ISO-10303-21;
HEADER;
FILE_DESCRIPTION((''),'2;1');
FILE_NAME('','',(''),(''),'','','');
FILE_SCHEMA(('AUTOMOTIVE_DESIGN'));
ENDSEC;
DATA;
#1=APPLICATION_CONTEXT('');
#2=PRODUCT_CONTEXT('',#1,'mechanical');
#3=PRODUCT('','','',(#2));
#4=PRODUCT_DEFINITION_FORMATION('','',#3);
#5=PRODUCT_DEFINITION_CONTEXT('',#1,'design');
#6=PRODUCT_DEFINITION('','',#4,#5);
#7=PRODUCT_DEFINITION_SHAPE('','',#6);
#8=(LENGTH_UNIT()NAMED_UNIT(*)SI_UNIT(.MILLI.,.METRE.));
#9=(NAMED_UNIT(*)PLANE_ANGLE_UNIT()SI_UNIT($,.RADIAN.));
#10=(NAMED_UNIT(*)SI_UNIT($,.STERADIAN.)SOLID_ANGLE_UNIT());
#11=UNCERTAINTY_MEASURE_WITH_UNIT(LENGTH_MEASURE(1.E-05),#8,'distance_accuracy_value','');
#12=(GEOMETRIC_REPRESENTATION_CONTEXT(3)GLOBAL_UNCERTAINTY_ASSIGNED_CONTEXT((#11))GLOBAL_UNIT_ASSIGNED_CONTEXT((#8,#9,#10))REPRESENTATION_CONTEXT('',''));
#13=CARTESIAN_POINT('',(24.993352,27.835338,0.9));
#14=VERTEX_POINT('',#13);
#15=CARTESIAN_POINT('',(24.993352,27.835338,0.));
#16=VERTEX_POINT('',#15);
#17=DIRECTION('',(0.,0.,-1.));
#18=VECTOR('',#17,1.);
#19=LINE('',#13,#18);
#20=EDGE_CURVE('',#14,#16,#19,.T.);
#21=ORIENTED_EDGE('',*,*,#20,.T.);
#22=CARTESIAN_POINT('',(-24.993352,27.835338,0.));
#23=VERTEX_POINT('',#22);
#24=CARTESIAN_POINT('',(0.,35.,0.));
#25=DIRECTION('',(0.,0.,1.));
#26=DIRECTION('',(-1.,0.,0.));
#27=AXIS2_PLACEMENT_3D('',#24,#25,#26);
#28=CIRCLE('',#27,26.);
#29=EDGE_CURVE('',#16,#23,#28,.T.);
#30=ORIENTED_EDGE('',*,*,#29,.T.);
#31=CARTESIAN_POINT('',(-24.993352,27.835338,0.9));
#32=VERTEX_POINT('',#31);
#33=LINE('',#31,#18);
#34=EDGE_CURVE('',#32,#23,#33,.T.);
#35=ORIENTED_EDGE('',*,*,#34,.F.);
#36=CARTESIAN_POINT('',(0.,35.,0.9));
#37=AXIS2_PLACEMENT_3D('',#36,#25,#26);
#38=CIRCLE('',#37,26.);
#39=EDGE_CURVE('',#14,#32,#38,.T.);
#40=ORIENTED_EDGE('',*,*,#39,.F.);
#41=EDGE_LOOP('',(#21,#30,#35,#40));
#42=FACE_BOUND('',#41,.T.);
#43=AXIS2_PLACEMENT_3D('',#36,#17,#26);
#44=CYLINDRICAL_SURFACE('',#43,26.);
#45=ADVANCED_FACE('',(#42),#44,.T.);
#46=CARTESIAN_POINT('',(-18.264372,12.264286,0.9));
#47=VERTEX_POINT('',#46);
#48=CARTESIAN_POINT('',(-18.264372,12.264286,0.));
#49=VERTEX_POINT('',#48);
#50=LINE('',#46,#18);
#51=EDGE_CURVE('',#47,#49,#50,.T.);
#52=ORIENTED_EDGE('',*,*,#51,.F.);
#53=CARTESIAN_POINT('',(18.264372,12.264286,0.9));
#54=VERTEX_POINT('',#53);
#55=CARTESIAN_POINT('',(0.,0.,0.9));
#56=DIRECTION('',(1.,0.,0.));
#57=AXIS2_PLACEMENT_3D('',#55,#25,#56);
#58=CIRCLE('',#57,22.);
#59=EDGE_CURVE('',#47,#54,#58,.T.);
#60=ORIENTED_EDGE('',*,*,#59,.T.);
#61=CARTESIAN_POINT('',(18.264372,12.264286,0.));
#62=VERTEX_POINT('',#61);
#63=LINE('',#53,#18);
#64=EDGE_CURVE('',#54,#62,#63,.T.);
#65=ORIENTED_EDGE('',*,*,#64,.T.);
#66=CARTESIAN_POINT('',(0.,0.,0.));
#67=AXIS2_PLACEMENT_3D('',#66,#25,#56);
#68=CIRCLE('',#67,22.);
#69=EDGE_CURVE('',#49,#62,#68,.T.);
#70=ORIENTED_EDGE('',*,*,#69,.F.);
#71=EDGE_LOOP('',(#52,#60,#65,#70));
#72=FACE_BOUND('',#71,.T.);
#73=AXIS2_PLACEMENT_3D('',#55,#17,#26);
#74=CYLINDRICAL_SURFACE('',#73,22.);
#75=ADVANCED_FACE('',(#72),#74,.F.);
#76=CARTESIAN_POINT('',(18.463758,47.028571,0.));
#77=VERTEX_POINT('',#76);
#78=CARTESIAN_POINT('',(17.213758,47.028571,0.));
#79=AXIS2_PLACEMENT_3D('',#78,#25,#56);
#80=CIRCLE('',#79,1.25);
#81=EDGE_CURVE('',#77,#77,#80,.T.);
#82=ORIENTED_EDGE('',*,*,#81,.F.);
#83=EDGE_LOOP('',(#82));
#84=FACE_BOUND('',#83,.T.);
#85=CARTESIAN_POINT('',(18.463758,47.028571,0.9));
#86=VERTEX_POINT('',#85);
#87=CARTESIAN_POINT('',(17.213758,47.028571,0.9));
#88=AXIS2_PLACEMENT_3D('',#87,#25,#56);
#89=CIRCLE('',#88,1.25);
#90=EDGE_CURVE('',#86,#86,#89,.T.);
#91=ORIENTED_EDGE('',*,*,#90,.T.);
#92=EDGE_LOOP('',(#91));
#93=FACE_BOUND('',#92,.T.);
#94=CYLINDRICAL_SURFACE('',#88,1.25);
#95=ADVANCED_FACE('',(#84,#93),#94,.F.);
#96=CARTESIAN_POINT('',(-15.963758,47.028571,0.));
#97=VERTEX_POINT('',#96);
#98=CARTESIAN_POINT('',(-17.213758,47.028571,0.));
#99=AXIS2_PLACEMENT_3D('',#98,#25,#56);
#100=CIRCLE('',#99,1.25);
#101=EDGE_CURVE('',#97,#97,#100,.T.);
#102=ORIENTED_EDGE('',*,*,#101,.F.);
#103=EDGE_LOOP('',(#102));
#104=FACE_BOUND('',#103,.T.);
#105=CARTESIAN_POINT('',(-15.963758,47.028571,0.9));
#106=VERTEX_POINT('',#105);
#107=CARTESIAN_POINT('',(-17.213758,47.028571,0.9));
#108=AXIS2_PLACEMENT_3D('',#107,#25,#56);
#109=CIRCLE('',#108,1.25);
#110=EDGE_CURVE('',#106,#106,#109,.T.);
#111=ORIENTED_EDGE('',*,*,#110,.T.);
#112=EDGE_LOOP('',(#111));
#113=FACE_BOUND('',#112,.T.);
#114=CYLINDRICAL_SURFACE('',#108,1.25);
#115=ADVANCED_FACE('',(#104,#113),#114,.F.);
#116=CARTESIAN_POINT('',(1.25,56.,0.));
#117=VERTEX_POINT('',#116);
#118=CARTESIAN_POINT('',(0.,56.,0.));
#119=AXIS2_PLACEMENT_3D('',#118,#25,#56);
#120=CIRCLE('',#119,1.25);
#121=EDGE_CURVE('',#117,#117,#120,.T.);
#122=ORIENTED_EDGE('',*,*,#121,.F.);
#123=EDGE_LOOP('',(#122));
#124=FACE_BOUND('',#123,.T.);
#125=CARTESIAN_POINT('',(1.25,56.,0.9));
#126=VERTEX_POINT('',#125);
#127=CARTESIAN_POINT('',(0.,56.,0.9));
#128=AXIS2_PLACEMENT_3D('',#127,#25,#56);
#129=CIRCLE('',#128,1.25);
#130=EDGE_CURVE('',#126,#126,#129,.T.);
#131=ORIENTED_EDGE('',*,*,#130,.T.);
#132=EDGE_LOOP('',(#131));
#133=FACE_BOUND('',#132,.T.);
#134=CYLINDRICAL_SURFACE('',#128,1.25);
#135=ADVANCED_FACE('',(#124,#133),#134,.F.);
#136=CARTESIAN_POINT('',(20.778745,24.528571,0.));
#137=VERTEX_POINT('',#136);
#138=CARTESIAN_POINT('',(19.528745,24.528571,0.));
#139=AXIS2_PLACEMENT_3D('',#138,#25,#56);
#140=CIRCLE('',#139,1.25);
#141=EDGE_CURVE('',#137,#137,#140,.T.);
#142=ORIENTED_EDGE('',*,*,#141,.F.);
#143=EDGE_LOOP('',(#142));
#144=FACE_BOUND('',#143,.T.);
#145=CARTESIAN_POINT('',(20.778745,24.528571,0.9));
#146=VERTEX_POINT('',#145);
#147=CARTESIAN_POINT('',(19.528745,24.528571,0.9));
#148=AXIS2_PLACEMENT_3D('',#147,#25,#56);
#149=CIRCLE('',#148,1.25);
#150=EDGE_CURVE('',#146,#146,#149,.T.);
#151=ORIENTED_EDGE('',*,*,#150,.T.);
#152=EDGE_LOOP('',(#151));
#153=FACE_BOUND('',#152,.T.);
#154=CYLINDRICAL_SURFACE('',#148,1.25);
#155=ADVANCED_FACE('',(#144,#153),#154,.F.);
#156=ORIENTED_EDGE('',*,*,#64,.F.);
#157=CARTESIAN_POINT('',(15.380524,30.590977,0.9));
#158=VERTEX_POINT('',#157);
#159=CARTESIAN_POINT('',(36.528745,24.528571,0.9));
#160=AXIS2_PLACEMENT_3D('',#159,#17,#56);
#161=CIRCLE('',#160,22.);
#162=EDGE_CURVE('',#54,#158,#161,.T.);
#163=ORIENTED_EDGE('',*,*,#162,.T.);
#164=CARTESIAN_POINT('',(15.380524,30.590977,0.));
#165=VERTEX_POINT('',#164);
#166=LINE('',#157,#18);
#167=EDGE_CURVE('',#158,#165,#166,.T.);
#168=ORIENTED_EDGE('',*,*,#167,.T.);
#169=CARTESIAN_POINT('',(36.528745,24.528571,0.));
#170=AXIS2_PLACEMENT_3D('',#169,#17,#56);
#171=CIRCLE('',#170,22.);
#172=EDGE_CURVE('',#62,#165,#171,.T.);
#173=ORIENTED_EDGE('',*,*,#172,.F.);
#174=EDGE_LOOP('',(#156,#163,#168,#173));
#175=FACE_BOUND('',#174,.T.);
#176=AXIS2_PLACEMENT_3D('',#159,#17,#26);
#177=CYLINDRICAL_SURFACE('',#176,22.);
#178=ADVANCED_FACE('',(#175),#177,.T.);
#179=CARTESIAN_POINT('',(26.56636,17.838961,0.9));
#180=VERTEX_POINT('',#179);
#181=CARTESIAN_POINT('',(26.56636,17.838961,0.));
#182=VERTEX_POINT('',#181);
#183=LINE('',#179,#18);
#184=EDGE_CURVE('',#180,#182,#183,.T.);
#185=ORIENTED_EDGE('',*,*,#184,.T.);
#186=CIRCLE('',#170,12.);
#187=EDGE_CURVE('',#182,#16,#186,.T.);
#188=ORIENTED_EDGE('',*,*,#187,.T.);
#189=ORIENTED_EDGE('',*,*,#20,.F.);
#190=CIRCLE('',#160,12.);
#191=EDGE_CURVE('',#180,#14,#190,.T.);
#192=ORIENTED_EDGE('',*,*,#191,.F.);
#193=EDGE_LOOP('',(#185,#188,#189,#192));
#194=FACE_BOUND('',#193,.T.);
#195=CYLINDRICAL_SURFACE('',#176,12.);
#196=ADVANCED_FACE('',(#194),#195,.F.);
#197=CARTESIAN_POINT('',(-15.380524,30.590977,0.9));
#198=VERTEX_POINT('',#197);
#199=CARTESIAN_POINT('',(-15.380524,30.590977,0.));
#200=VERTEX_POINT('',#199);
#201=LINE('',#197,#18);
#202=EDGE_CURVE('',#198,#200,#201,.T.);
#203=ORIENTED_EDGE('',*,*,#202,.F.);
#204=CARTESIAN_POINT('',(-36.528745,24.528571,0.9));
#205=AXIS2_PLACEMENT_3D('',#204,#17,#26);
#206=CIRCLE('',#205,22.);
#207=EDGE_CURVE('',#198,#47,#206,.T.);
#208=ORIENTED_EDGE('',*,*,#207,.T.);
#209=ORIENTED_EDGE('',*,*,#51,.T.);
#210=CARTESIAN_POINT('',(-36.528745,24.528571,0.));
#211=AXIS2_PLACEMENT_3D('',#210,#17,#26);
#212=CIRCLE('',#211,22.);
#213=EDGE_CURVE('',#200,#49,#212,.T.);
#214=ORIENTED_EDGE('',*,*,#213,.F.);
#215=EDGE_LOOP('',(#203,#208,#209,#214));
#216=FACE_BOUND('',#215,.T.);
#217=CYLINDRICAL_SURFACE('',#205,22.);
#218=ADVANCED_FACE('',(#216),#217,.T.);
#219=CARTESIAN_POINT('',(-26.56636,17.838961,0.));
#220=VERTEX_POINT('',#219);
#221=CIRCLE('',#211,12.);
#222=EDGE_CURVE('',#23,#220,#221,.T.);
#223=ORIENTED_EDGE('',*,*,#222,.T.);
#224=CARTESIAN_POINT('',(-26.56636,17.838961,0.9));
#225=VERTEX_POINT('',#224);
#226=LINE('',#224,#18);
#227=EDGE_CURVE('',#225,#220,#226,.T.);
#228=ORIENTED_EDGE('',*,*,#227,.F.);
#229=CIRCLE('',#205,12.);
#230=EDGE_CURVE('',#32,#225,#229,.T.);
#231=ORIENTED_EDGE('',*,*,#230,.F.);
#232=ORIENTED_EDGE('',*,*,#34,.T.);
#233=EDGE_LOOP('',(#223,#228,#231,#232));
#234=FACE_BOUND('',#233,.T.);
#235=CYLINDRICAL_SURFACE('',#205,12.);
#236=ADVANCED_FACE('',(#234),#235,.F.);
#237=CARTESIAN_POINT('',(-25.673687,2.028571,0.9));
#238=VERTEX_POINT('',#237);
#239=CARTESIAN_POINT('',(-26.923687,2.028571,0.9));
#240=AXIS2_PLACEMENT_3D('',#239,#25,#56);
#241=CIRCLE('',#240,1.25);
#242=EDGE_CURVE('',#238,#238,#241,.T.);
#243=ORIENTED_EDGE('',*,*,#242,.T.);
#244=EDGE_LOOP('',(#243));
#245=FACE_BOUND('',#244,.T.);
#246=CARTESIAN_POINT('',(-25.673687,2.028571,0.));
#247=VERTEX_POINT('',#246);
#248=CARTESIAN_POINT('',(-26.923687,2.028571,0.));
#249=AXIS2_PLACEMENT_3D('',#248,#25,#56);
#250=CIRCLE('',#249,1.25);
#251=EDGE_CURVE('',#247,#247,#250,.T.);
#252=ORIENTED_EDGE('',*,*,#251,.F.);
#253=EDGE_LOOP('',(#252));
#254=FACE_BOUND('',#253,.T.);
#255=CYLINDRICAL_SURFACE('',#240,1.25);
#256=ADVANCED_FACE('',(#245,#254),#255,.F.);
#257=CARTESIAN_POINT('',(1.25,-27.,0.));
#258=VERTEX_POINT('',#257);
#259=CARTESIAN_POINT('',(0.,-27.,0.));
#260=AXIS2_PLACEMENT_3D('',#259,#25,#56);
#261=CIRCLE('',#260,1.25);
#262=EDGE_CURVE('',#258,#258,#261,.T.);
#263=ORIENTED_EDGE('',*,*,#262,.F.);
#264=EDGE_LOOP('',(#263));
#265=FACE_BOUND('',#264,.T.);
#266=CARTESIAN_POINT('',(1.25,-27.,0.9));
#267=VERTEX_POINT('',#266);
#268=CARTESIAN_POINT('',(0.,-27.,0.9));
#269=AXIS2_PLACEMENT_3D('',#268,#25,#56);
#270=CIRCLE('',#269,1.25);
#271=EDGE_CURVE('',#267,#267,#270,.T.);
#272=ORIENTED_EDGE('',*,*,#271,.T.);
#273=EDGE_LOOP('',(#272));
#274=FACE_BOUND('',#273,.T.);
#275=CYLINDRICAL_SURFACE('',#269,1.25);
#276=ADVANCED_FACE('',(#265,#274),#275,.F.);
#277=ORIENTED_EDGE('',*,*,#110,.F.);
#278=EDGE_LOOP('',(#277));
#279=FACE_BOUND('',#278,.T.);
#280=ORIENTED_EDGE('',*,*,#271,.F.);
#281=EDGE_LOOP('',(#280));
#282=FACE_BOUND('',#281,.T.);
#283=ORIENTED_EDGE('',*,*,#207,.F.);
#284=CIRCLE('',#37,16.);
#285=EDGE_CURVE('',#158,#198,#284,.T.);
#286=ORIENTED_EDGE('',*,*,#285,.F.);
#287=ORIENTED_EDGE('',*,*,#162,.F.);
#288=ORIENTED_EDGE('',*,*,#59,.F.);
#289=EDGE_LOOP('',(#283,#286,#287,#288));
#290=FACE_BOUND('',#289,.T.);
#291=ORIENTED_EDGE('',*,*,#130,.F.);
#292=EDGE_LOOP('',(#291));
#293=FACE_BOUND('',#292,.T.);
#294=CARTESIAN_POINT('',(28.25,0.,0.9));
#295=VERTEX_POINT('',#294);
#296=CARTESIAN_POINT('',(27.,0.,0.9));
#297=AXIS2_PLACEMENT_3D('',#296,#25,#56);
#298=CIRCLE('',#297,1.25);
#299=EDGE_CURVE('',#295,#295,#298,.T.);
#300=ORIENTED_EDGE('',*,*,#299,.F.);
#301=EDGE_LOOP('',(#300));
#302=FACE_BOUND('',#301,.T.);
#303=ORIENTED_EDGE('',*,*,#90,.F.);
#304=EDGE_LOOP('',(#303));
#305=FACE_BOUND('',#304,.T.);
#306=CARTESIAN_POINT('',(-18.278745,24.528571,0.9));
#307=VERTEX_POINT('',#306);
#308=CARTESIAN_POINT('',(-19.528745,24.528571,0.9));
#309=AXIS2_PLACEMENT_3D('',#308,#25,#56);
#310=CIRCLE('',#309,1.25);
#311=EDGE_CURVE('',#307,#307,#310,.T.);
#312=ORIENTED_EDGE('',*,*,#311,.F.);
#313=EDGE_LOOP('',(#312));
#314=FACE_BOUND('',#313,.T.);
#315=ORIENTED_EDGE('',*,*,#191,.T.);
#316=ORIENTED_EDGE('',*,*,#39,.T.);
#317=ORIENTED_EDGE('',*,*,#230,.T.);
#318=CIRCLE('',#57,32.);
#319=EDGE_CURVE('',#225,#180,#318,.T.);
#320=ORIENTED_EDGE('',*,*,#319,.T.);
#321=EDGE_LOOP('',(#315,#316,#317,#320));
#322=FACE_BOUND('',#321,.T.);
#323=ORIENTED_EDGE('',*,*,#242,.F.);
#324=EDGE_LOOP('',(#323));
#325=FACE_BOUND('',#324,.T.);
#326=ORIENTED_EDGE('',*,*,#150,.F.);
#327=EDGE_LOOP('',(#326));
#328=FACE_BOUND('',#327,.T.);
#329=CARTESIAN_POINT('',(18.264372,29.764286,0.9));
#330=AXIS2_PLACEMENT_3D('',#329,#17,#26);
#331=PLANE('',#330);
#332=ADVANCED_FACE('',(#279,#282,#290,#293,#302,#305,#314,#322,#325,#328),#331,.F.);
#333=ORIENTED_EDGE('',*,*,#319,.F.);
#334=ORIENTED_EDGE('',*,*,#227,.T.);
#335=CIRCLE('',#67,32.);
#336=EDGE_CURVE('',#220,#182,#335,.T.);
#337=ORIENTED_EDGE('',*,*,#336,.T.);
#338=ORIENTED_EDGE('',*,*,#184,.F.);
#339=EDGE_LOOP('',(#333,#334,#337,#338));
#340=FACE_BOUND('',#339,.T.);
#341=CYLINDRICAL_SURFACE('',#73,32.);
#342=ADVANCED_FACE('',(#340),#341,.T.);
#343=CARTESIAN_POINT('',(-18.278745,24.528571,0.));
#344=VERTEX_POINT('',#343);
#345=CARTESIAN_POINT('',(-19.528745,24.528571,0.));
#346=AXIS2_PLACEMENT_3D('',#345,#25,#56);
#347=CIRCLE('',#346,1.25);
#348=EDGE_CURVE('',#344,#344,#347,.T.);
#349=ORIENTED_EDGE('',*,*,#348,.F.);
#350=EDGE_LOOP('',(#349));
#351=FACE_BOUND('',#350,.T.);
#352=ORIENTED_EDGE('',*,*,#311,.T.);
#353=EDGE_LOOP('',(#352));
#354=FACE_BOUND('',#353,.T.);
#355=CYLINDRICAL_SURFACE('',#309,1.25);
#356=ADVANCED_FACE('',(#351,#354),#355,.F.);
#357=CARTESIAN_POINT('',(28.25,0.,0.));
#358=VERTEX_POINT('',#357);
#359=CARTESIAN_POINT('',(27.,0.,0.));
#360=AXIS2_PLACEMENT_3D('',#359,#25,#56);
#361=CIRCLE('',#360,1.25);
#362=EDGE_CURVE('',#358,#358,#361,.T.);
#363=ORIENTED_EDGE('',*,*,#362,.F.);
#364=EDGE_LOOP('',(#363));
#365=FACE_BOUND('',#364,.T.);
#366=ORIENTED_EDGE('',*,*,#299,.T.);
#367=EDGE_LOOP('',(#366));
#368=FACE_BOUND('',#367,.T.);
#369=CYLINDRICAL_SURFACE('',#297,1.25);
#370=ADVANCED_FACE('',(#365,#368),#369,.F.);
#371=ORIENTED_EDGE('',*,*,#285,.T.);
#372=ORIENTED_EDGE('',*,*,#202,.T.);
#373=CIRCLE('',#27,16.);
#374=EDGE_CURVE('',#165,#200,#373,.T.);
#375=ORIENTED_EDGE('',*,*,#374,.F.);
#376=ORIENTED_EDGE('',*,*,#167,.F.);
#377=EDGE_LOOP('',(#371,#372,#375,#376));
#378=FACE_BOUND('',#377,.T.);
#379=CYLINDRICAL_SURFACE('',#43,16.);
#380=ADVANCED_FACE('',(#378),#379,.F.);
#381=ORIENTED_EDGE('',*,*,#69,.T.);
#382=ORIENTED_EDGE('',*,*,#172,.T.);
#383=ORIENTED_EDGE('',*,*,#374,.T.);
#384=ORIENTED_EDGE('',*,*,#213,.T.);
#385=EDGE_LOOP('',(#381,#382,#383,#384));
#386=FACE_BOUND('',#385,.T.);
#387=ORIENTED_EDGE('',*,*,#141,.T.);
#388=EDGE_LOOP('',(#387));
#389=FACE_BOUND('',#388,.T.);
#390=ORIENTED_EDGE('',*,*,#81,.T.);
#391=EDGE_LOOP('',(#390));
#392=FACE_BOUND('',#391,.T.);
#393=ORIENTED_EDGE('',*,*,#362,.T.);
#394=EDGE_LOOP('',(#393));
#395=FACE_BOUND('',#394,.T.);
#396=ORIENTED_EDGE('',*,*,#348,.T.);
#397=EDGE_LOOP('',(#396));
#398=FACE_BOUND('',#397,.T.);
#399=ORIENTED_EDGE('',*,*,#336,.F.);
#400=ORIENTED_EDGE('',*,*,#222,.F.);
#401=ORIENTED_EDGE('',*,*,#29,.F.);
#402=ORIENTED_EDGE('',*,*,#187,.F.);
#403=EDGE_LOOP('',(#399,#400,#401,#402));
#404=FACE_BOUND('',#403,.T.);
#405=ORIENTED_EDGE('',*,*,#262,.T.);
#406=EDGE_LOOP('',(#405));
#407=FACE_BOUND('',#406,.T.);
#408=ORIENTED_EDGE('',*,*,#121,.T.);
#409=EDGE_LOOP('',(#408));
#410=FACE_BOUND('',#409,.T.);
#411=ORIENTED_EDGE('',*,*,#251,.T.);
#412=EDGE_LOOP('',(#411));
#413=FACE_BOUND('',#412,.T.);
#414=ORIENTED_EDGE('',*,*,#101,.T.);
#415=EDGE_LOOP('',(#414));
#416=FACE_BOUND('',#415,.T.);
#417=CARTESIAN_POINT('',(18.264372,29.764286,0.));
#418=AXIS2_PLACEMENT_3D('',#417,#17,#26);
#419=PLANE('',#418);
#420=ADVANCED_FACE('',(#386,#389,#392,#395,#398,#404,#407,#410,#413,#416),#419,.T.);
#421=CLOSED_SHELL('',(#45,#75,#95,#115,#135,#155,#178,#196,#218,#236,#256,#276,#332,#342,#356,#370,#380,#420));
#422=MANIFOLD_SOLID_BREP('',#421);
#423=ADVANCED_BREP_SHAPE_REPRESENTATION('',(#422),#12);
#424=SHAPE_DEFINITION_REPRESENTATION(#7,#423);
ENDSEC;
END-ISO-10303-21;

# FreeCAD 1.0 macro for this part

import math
import FreeCAD as App
import Part
import Sketcher

V = App.Vector
Q = App.Units.Quantity

doc = App.newDocument("Part")
params = doc.addObject("Spreadsheet::Sheet", "Params")
for row, (alias, value) in enumerate([
    ("sketch1_radius", "12 mm"),
    ("sketch1_radius2", "32 mm"),
    ("sketch1_radius3", "26 mm"),
    ("pad1_length", "0.9 mm"),
    ("sketch2_diameter", "2.5 mm"),
    ("hole_diameter", "2.5 mm"),
], start=1):
    params.set(f"A{row}", alias)
    params.set(f"B{row}", "=" + value)
    params.setAlias(f"B{row}", alias)

body = doc.addObject("PartDesign::Body", "Body")

sketch1 = body.newObject("Sketcher::SketchObject", "Sketch")
sketch1.AttachmentSupport = (doc.getObject("XY_Plane"), [""])
sketch1.MapMode = "FlatFace"
sketch1.addGeometry(Part.ArcOfCircle(Part.Circle(V(-37, 25, 0), V(0, 0, 1), 12), math.radians(-34), math.radians(16)), False)
sketch1.addGeometry(Part.ArcOfCircle(Part.Circle(V(0, 0, 0), V(0, 0, 1), 32), math.radians(146), math.radians(394)), False)
sketch1.addGeometry(Part.ArcOfCircle(Part.Circle(V(37, 25, 0), V(0, 0, 1), 12), math.radians(164), math.radians(214)), False)
sketch1.addGeometry(Part.ArcOfCircle(Part.Circle(V(0, 35, 0), V(0, 0, 1), 26), math.radians(-16), math.radians(196)), False)
sketch1.addGeometry(Part.ArcOfCircle(Part.Circle(V(-37, 25, 0), V(0, 0, 1), 22), math.radians(-34), math.radians(16)), False)
sketch1.addGeometry(Part.ArcOfCircle(Part.Circle(V(0, 35, 0), V(0, 0, 1), 16), math.radians(-16), math.radians(196)), False)
sketch1.addGeometry(Part.ArcOfCircle(Part.Circle(V(37, 25, 0), V(0, 0, 1), 22), math.radians(164), math.radians(214)), False)
sketch1.addGeometry(Part.ArcOfCircle(Part.Circle(V(0, 0, 0), V(0, 0, 1), 22), math.radians(146), math.radians(394)), False)
sketch1.addConstraint(Sketcher.Constraint("Tangent", 0, 1, 1, 1))
sketch1.addConstraint(Sketcher.Constraint("Tangent", 1, 2, 2, 2))
sketch1.addConstraint(Sketcher.Constraint("Tangent", 2, 1, 3, 1))
sketch1.addConstraint(Sketcher.Constraint("Tangent", 3, 2, 0, 2))
sketch1.addConstraint(Sketcher.Constraint("Tangent", 4, 2, 5, 2))
sketch1.addConstraint(Sketcher.Constraint("Tangent", 5, 1, 6, 1))
sketch1.addConstraint(Sketcher.Constraint("Tangent", 6, 2, 7, 2))
sketch1.addConstraint(Sketcher.Constraint("Tangent", 7, 1, 4, 1))
sketch1.addConstraint(Sketcher.Constraint("Coincident", 1, 3, -1, 1))
sketch1.addConstraint(Sketcher.Constraint("Coincident", 7, 3, -1, 1))
sketch1.addConstraint(Sketcher.Constraint("Coincident", 4, 3, 0, 3))
sketch1.addConstraint(Sketcher.Constraint("Coincident", 5, 3, 3, 3))
sketch1.addConstraint(Sketcher.Constraint("Equal", 0, 2))
sketch1.addConstraint(Sketcher.Constraint("Equal", 4, 6))
sketch1.addConstraint(Sketcher.Constraint("Equal", 6, 7))
sketch1.addConstraint(Sketcher.Constraint("PointOnObject", 3, 3, -2))
sketch1.addConstraint(Sketcher.Constraint("Radius", 0, Q("12 mm")))
sketch1.addConstraint(Sketcher.Constraint("Radius", 1, Q("32 mm")))
sketch1.addConstraint(Sketcher.Constraint("Radius", 3, Q("26 mm")))
sketch1.addConstraint(Sketcher.Constraint("DistanceY", -1, 1, 3, 3, Q("35 mm")))
sketch1.setExpression("Constraints[16]", "Params.sketch1_radius")
sketch1.setExpression("Constraints[17]", "Params.sketch1_radius2")
sketch1.setExpression("Constraints[18]", "Params.sketch1_radius3")
pad1 = body.newObject("PartDesign::Pad", "Pad")
pad1.Profile = sketch1
pad1.setExpression("Length", "Params.pad1_length")

sketch2 = body.newObject("Sketcher::SketchObject", "Sketch001")
sketch2.AttachmentSupport = (doc.getObject("XY_Plane"), [""])
sketch2.MapMode = "FlatFace"
sketch2.AttachmentOffset = App.Placement(V(0, 0, 0.9), App.Rotation())
sketch2.addGeometry(Part.Circle(V(27, 0, 0), V(0, 0, 1), 1.2), False)
sketch2.addGeometry(Part.Circle(V(19.5, 24.5, 0), V(0, 0, 1), 1.2), False)
sketch2.addGeometry(Part.Circle(V(-19.5, 24.5, 0), V(0, 0, 1), 1.2), False)
sketch2.addGeometry(Part.Circle(V(-26.9, 2, 0), V(0, 0, 1), 1.2), False)
sketch2.addGeometry(Part.Circle(V(0, 56, 0), V(0, 0, 1), 1.2), False)
sketch2.addGeometry(Part.Circle(V(17.2, 47, 0), V(0, 0, 1), 1.2), False)
sketch2.addGeometry(Part.Circle(V(-17.2, 47, 0), V(0, 0, 1), 1.2), False)
sketch2.addGeometry(Part.Circle(V(0, -27, 0), V(0, 0, 1), 1.2), False)
sketch2.addConstraint(Sketcher.Constraint("Equal", 0, 1))
sketch2.addConstraint(Sketcher.Constraint("Equal", 1, 2))
sketch2.addConstraint(Sketcher.Constraint("Equal", 2, 3))
sketch2.addConstraint(Sketcher.Constraint("Equal", 3, 4))
sketch2.addConstraint(Sketcher.Constraint("Equal", 4, 5))
sketch2.addConstraint(Sketcher.Constraint("Equal", 5, 6))
sketch2.addConstraint(Sketcher.Constraint("Equal", 6, 7))
sketch2.addConstraint(Sketcher.Constraint("Symmetric", 1, 3, 2, 3, -2))
sketch2.addConstraint(Sketcher.Constraint("Symmetric", 5, 3, 6, 3, -2))
sketch2.addConstraint(Sketcher.Constraint("PointOnObject", 0, 3, -1))
sketch2.addConstraint(Sketcher.Constraint("PointOnObject", 4, 3, -2))
sketch2.addConstraint(Sketcher.Constraint("PointOnObject", 7, 3, -2))
sketch2.addConstraint(Sketcher.Constraint("Diameter", 0, Q("2.5 mm")))
sketch2.addConstraint(Sketcher.Constraint("DistanceX", -1, 1, 0, 3, Q("27 mm")))
sketch2.addConstraint(Sketcher.Constraint("DistanceY", -1, 1, 4, 3, Q("56 mm")))
sketch2.addConstraint(Sketcher.Constraint("DistanceY", 7, 3, -1, 1, Q("27 mm")))
sketch2.addConstraint(Sketcher.Constraint("DistanceY", 3, 3, 5, 3, Q("45 mm")))
sketch2.addConstraint(Sketcher.Constraint("DistanceY", 3, 3, 2, 3, Q("22.5 mm")))
sketch2.addConstraint(Sketcher.Constraint("DistanceY", -1, 1, 1, 3, Q("24.528571 mm")))
sketch2.addConstraint(Sketcher.Constraint("DistanceX", -1, 1, 5, 3, Q("17.213758 mm")))
sketch2.addConstraint(Sketcher.Constraint("DistanceX", 2, 3, 1, 3, Q("39.057489 mm")))
sketch2.addConstraint(Sketcher.Constraint("DistanceX", 3, 3, 2, 3, Q("7.394942 mm")))
sketch2.setExpression("Constraints[12]", "Params.sketch2_diameter")
doc.recompute()
hole = body.newObject("PartDesign::Hole", "Hole")
hole.Profile = sketch2
hole.ThreadType = "None"
hole.setExpression("Diameter", "Params.hole_diameter")
hole.DepthType = "ThroughAll"

doc.recompute()
